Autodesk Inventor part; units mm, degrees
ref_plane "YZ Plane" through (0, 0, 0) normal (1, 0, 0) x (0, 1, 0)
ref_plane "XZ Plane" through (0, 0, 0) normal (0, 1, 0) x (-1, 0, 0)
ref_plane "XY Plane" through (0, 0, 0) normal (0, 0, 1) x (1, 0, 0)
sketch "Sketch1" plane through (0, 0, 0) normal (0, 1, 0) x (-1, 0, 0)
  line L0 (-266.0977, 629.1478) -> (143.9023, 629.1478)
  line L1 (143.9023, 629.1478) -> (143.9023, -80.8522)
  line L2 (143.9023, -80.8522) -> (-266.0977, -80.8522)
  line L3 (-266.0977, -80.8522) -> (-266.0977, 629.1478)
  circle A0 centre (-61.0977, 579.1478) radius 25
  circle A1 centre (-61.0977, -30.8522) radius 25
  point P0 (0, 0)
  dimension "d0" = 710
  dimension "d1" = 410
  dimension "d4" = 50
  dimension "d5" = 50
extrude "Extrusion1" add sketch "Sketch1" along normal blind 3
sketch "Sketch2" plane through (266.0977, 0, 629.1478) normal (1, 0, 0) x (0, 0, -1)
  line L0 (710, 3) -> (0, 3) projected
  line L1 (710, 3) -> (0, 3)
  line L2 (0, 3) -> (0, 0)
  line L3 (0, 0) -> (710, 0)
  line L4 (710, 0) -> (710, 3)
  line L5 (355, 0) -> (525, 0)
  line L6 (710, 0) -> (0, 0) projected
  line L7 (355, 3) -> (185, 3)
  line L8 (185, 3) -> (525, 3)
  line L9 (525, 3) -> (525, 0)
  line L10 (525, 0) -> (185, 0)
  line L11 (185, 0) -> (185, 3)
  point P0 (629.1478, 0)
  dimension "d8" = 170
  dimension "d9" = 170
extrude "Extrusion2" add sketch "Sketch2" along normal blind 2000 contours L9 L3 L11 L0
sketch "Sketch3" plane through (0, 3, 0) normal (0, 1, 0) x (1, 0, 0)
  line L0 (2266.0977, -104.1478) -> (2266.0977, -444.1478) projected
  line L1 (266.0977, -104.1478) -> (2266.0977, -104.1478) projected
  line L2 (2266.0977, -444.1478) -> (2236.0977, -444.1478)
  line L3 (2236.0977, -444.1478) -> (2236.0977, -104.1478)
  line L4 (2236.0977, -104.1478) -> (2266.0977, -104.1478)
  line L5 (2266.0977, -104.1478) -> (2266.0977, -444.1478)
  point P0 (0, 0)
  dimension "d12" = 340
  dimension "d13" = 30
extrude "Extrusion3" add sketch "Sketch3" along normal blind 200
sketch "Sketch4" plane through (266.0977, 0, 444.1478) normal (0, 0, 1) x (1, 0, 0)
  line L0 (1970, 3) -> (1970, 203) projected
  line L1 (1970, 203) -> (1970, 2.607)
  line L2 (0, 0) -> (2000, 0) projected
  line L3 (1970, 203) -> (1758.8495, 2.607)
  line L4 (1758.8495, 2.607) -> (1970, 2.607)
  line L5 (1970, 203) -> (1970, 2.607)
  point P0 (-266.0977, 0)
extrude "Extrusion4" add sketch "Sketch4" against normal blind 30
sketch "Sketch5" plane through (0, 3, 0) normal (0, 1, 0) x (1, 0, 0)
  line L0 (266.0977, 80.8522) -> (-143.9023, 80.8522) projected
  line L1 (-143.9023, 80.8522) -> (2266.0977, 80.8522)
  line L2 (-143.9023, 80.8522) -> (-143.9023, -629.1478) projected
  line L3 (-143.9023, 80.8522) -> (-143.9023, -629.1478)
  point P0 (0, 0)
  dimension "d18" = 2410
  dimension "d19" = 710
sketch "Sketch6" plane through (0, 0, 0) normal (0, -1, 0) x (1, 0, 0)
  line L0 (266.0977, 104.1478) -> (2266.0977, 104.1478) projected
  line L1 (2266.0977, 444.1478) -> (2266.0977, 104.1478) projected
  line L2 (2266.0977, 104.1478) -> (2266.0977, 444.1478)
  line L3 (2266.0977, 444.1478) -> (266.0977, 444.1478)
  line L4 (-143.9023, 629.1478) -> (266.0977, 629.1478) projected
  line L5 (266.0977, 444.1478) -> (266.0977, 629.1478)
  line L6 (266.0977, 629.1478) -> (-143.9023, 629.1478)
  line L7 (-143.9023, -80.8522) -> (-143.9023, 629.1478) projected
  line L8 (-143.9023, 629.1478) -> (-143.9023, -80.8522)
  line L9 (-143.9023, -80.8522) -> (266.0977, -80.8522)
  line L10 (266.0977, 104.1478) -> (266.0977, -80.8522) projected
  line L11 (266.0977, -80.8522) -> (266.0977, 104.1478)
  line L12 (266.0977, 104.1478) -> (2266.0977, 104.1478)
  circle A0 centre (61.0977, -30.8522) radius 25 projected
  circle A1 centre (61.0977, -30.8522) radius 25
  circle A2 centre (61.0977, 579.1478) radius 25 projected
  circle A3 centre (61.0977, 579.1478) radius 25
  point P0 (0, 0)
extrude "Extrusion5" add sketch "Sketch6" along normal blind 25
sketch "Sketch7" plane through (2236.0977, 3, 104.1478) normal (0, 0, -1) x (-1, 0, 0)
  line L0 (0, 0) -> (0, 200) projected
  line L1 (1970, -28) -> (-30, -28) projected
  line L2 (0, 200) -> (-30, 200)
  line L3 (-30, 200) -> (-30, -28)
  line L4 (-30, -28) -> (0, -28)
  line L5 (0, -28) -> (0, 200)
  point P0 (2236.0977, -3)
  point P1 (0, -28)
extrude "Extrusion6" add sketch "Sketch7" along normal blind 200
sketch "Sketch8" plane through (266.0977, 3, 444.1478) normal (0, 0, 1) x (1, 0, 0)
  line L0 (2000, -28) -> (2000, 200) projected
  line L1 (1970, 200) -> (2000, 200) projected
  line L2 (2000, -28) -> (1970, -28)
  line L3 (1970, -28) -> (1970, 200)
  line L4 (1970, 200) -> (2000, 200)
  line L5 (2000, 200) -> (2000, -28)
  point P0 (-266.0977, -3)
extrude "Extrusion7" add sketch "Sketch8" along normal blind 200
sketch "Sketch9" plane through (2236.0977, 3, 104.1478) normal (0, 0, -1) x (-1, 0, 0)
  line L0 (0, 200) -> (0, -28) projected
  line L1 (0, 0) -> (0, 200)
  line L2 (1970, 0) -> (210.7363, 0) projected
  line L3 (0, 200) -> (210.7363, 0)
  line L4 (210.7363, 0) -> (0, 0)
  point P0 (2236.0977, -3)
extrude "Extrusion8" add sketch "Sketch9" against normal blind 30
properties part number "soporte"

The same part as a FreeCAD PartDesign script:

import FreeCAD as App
import Part
import Sketcher

V = App.Vector


def add_polygon(sketch, points):
    """Adds a closed chain of lines whose ends are joined by coincident constraints."""
    first, n = sketch.GeometryCount, len(points)
    for a, b in zip(points, points[1:] + points[:1]):
        sketch.addGeometry(Part.LineSegment(App.Vector(*a, 0), App.Vector(*b, 0)), False)
    for i in range(n):
        sketch.addConstraint(Sketcher.Constraint("Coincident", first + i, 2, first + (i + 1) % n, 1))

doc = App.newDocument("Part")
body = doc.addObject("PartDesign::Body", "Body")

# Sketch on XZ plane
sketch1 = body.newObject("Sketcher::SketchObject", "Sketch")
sketch1.AttachmentSupport = (doc.getObject("XZ_Plane"), [""])
sketch1.MapMode = "FlatFace"
add_polygon(sketch1, [(-144, 629), (266, 629), (266, -81), (-144, -81)])  # lines 0-3
sketch1.addGeometry(Part.Circle(V(61, -31, 0), V(0, 0, 1), 25), False)  # 4
sketch1.addGeometry(Part.Circle(V(61, 579, 0), V(0, 0, 1), 25), False)  # 5
sketch1.addConstraint(Sketcher.Constraint("Horizontal", 0))
sketch1.addConstraint(Sketcher.Constraint("Vertical", 1))
sketch1.addConstraint(Sketcher.Constraint("Horizontal", 2))
sketch1.addConstraint(Sketcher.Constraint("Vertical", 3))
sketch1.addConstraint(Sketcher.Constraint("Equal", 4, 5))
sketch1.addConstraint(Sketcher.Constraint("Vertical", 4, 3, 5, 3))
sketch1.addConstraint(Sketcher.Constraint("Diameter", 4, 50.0))
sketch1.addConstraint(Sketcher.Constraint("DistanceX", 0, 1, 0, 2, 410.0))
sketch1.addConstraint(Sketcher.Constraint("DistanceY", 1, 2, 1, 1, 710.0))
sketch1.addConstraint(Sketcher.Constraint("DistanceY", 5, 3, 0, 2, 50.0))
sketch1.addConstraint(Sketcher.Constraint("DistanceY", 1, 2, 4, 3, 50.0))
sketch1.addConstraint(Sketcher.Constraint("DistanceX", 5, 3, 0, 2, 205.0))
sketch1.addConstraint(Sketcher.Constraint("DistanceX", -1, 1, 4, 3, 61.0977))
sketch1.addConstraint(Sketcher.Constraint("DistanceY", 4, 3, -1, 1, 30.8522))
pad1 = body.newObject("PartDesign::Pad", "Pad")
pad1.Profile = sketch1
pad1.Length = 3
pad1.Reversed = True

# Sketch on YZ plane
sketch2 = body.newObject("Sketcher::SketchObject", "Sketch001")
sketch2.AttachmentSupport = (doc.getObject("YZ_Plane"), [""])
sketch2.MapMode = "FlatFace"
sketch2.AttachmentOffset = App.Placement(V(0, 0, 266.0977), App.Rotation())
add_polygon(sketch2, [(0, 104.1), (3, 104.1), (3, 444.1), (0, 444.1)])  # lines 0-3
sketch2.addConstraint(Sketcher.Constraint("Horizontal", 0))
sketch2.addConstraint(Sketcher.Constraint("Vertical", 1))
sketch2.addConstraint(Sketcher.Constraint("Horizontal", 2))
sketch2.addConstraint(Sketcher.Constraint("Vertical", 3))
sketch2.addConstraint(Sketcher.Constraint("PointOnObject", 2, 2, -2))
sketch2.addConstraint(Sketcher.Constraint("DistanceX", 0, 1, 0, 2, 3.0))
sketch2.addConstraint(Sketcher.Constraint("DistanceY", 1, 1, 1, 2, 340.0))
sketch2.addConstraint(Sketcher.Constraint("DistanceY", -1, 1, 0, 2, 104.1478))
pad2 = body.newObject("PartDesign::Pad", "Pad001")
pad2.Profile = sketch2
pad2.Length = 2000

# Sketch on XZ plane
sketch3 = body.newObject("Sketcher::SketchObject", "Sketch002")
sketch3.AttachmentSupport = (doc.getObject("XZ_Plane"), [""])
sketch3.MapMode = "FlatFace"
sketch3.AttachmentOffset = App.Placement(V(0, 0, -3), App.Rotation())
add_polygon(sketch3, [(2266, 444), (2266, 104), (2236, 104), (2236, 444)])  # lines 0-3
sketch3.addConstraint(Sketcher.Constraint("Vertical", 0))
sketch3.addConstraint(Sketcher.Constraint("Horizontal", 1))
sketch3.addConstraint(Sketcher.Constraint("Vertical", 2))
sketch3.addConstraint(Sketcher.Constraint("Horizontal", 3))
sketch3.addConstraint(Sketcher.Constraint("DistanceX", 1, 2, 1, 1, 30.0))
sketch3.addConstraint(Sketcher.Constraint("DistanceY", 0, 2, 0, 1, 340.0))
sketch3.addConstraint(Sketcher.Constraint("DistanceX", -1, 1, 0, 2, 2266.0977))
sketch3.addConstraint(Sketcher.Constraint("DistanceY", -1, 1, 0, 2, 104.1478))
pad3 = body.newObject("PartDesign::Pad", "Pad002")
pad3.Profile = sketch3
pad3.Length = 200
pad3.Reversed = True

# Sketch on XY plane
sketch4 = body.newObject("Sketcher::SketchObject", "Sketch003")
sketch4.AttachmentSupport = (doc.getObject("XY_Plane"), [""])
sketch4.MapMode = "FlatFace"
sketch4.AttachmentOffset = App.Placement(V(0, 0, 444.1478), App.Rotation())
add_polygon(sketch4, [(2236, 3), (2236, 203), (2025, 3)])  # lines 0-2
sketch4.addConstraint(Sketcher.Constraint("Vertical", 0))
sketch4.addConstraint(Sketcher.Constraint("Horizontal", 2))
sketch4.addConstraint(Sketcher.Constraint("DistanceY", -1, 1, 0, 2, 203.0))
sketch4.addConstraint(Sketcher.Constraint("DistanceY", 0, 1, 0, 2, 200.393))
sketch4.addConstraint(Sketcher.Constraint("DistanceX", 2, 1, 2, 2, 211.1505))
sketch4.addConstraint(Sketcher.Constraint("DistanceX", -1, 1, 0, 2, 2236.0977))
pad4 = body.newObject("PartDesign::Pad", "Pad003")
pad4.Profile = sketch4
pad4.Length = 30
pad4.Reversed = True

# Sketch on XZ plane
sketch5 = body.newObject("Sketcher::SketchObject", "Sketch004")
sketch5.AttachmentSupport = (doc.getObject("XZ_Plane"), [""])
sketch5.MapMode = "FlatFace"
add_polygon(sketch5, [(266, -81), (266, 104), (2266, 104), (2266, 444), (266, 444), (266, 629), (-144, 629), (-144, -81)])  # lines 0-7
sketch5.addGeometry(Part.Circle(V(61, -31, 0), V(0, 0, 1), 25), False)  # 8
sketch5.addGeometry(Part.Circle(V(61, 579, 0), V(0, 0, 1), 25), False)  # 9
sketch5.addConstraint(Sketcher.Constraint("Vertical", 0))
sketch5.addConstraint(Sketcher.Constraint("Horizontal", 1))
sketch5.addConstraint(Sketcher.Constraint("Vertical", 2))
sketch5.addConstraint(Sketcher.Constraint("Horizontal", 3))
sketch5.addConstraint(Sketcher.Constraint("Vertical", 4))
sketch5.addConstraint(Sketcher.Constraint("Horizontal", 5))
sketch5.addConstraint(Sketcher.Constraint("Vertical", 6))
sketch5.addConstraint(Sketcher.Constraint("Horizontal", 7))
sketch5.addConstraint(Sketcher.Constraint("Equal", 8, 9))
sketch5.addConstraint(Sketcher.Constraint("Vertical", 8, 3, 9, 3))
sketch5.addConstraint(Sketcher.Constraint("Vertical", 0, 2, 3, 2))
sketch5.addConstraint(Sketcher.Constraint("Equal", 0, 4))
sketch5.addConstraint(Sketcher.Constraint("Diameter", 8, 50.0))
sketch5.addConstraint(Sketcher.Constraint("DistanceX", 1, 1, 1, 2, 2000.0))
sketch5.addConstraint(Sketcher.Constraint("DistanceX", 5, 2, 5, 1, 410.0))
sketch5.addConstraint(Sketcher.Constraint("DistanceY", 0, 1, 0, 2, 185.0))
sketch5.addConstraint(Sketcher.Constraint("DistanceY", 2, 1, 2, 2, 340.0))
sketch5.addConstraint(Sketcher.Constraint("DistanceY", 8, 3, 9, 3, 610.0))
sketch5.addConstraint(Sketcher.Constraint("DistanceX", 8, 3, 0, 2, 205.0))
sketch5.addConstraint(Sketcher.Constraint("DistanceY", 8, 3, 0, 2, 135.0))
sketch5.addConstraint(Sketcher.Constraint("DistanceX", -1, 1, 8, 3, 61.0977))
sketch5.addConstraint(Sketcher.Constraint("DistanceY", 8, 3, -1, 1, 30.8522))
pad5 = body.newObject("PartDesign::Pad", "Pad004")
pad5.Profile = sketch5
pad5.Length = 25

# Sketch on XY plane
sketch6 = body.newObject("Sketcher::SketchObject", "Sketch005")
sketch6.AttachmentSupport = (doc.getObject("XY_Plane"), [""])
sketch6.MapMode = "FlatFace"
sketch6.AttachmentOffset = App.Placement(V(0, 0, 104.1478), App.Rotation())
add_polygon(sketch6, [(2236, -25), (2236, 203), (2266, 203), (2266, -25)])  # lines 0-3
sketch6.addConstraint(Sketcher.Constraint("Vertical", 0))
sketch6.addConstraint(Sketcher.Constraint("Horizontal", 1))
sketch6.addConstraint(Sketcher.Constraint("Vertical", 2))
sketch6.addConstraint(Sketcher.Constraint("Horizontal", 3))
sketch6.addConstraint(Sketcher.Constraint("DistanceX", 1, 1, 1, 2, 30.0))
sketch6.addConstraint(Sketcher.Constraint("DistanceY", 0, 1, 0, 2, 228.0))
sketch6.addConstraint(Sketcher.Constraint("DistanceY", -1, 1, 0, 2, 203.0))
sketch6.addConstraint(Sketcher.Constraint("DistanceX", -1, 1, 0, 2, 2236.0977))
pad6 = body.newObject("PartDesign::Pad", "Pad005")
pad6.Profile = sketch6
pad6.Length = 200
pad6.Reversed = True

# Sketch on XY plane
sketch7 = body.newObject("Sketcher::SketchObject", "Sketch006")
sketch7.AttachmentSupport = (doc.getObject("XY_Plane"), [""])
sketch7.MapMode = "FlatFace"
sketch7.AttachmentOffset = App.Placement(V(0, 0, 444.1478), App.Rotation())
add_polygon(sketch7, [(2236, -25), (2266, -25), (2266, 203), (2236, 203)])  # lines 0-3
sketch7.addConstraint(Sketcher.Constraint("Horizontal", 0))
sketch7.addConstraint(Sketcher.Constraint("Vertical", 1))
sketch7.addConstraint(Sketcher.Constraint("Horizontal", 2))
sketch7.addConstraint(Sketcher.Constraint("Vertical", 3))
sketch7.addConstraint(Sketcher.Constraint("DistanceX", 0, 1, 0, 2, 30.0))
sketch7.addConstraint(Sketcher.Constraint("DistanceY", 1, 1, 1, 2, 228.0))
sketch7.addConstraint(Sketcher.Constraint("DistanceY", 0, 2, -1, 1, 25.0))
sketch7.addConstraint(Sketcher.Constraint("DistanceX", -1, 1, 0, 2, 2266.0977))
pad7 = body.newObject("PartDesign::Pad", "Pad006")
pad7.Profile = sketch7
pad7.Length = 200

# Sketch on XY plane
sketch8 = body.newObject("Sketcher::SketchObject", "Sketch007")
sketch8.AttachmentSupport = (doc.getObject("XY_Plane"), [""])
sketch8.MapMode = "FlatFace"
sketch8.AttachmentOffset = App.Placement(V(0, 0, 104.1478), App.Rotation())
add_polygon(sketch8, [(2025, 3), (2236, 203), (2236, 3)])  # lines 0-2
sketch8.addConstraint(Sketcher.Constraint("Vertical", 1))
sketch8.addConstraint(Sketcher.Constraint("Horizontal", 2))
sketch8.addConstraint(Sketcher.Constraint("DistanceY", 1, 2, 1, 1, 200.0))
sketch8.addConstraint(Sketcher.Constraint("DistanceY", -1, 1, 0, 2, 203.0))
sketch8.addConstraint(Sketcher.Constraint("DistanceX", 2, 2, 2, 1, 210.7363))
sketch8.addConstraint(Sketcher.Constraint("DistanceX", -1, 1, 0, 2, 2236.0977))
pad8 = body.newObject("PartDesign::Pad", "Pad007")
pad8.Profile = sketch8
pad8.Length = 30

doc.recompute()
